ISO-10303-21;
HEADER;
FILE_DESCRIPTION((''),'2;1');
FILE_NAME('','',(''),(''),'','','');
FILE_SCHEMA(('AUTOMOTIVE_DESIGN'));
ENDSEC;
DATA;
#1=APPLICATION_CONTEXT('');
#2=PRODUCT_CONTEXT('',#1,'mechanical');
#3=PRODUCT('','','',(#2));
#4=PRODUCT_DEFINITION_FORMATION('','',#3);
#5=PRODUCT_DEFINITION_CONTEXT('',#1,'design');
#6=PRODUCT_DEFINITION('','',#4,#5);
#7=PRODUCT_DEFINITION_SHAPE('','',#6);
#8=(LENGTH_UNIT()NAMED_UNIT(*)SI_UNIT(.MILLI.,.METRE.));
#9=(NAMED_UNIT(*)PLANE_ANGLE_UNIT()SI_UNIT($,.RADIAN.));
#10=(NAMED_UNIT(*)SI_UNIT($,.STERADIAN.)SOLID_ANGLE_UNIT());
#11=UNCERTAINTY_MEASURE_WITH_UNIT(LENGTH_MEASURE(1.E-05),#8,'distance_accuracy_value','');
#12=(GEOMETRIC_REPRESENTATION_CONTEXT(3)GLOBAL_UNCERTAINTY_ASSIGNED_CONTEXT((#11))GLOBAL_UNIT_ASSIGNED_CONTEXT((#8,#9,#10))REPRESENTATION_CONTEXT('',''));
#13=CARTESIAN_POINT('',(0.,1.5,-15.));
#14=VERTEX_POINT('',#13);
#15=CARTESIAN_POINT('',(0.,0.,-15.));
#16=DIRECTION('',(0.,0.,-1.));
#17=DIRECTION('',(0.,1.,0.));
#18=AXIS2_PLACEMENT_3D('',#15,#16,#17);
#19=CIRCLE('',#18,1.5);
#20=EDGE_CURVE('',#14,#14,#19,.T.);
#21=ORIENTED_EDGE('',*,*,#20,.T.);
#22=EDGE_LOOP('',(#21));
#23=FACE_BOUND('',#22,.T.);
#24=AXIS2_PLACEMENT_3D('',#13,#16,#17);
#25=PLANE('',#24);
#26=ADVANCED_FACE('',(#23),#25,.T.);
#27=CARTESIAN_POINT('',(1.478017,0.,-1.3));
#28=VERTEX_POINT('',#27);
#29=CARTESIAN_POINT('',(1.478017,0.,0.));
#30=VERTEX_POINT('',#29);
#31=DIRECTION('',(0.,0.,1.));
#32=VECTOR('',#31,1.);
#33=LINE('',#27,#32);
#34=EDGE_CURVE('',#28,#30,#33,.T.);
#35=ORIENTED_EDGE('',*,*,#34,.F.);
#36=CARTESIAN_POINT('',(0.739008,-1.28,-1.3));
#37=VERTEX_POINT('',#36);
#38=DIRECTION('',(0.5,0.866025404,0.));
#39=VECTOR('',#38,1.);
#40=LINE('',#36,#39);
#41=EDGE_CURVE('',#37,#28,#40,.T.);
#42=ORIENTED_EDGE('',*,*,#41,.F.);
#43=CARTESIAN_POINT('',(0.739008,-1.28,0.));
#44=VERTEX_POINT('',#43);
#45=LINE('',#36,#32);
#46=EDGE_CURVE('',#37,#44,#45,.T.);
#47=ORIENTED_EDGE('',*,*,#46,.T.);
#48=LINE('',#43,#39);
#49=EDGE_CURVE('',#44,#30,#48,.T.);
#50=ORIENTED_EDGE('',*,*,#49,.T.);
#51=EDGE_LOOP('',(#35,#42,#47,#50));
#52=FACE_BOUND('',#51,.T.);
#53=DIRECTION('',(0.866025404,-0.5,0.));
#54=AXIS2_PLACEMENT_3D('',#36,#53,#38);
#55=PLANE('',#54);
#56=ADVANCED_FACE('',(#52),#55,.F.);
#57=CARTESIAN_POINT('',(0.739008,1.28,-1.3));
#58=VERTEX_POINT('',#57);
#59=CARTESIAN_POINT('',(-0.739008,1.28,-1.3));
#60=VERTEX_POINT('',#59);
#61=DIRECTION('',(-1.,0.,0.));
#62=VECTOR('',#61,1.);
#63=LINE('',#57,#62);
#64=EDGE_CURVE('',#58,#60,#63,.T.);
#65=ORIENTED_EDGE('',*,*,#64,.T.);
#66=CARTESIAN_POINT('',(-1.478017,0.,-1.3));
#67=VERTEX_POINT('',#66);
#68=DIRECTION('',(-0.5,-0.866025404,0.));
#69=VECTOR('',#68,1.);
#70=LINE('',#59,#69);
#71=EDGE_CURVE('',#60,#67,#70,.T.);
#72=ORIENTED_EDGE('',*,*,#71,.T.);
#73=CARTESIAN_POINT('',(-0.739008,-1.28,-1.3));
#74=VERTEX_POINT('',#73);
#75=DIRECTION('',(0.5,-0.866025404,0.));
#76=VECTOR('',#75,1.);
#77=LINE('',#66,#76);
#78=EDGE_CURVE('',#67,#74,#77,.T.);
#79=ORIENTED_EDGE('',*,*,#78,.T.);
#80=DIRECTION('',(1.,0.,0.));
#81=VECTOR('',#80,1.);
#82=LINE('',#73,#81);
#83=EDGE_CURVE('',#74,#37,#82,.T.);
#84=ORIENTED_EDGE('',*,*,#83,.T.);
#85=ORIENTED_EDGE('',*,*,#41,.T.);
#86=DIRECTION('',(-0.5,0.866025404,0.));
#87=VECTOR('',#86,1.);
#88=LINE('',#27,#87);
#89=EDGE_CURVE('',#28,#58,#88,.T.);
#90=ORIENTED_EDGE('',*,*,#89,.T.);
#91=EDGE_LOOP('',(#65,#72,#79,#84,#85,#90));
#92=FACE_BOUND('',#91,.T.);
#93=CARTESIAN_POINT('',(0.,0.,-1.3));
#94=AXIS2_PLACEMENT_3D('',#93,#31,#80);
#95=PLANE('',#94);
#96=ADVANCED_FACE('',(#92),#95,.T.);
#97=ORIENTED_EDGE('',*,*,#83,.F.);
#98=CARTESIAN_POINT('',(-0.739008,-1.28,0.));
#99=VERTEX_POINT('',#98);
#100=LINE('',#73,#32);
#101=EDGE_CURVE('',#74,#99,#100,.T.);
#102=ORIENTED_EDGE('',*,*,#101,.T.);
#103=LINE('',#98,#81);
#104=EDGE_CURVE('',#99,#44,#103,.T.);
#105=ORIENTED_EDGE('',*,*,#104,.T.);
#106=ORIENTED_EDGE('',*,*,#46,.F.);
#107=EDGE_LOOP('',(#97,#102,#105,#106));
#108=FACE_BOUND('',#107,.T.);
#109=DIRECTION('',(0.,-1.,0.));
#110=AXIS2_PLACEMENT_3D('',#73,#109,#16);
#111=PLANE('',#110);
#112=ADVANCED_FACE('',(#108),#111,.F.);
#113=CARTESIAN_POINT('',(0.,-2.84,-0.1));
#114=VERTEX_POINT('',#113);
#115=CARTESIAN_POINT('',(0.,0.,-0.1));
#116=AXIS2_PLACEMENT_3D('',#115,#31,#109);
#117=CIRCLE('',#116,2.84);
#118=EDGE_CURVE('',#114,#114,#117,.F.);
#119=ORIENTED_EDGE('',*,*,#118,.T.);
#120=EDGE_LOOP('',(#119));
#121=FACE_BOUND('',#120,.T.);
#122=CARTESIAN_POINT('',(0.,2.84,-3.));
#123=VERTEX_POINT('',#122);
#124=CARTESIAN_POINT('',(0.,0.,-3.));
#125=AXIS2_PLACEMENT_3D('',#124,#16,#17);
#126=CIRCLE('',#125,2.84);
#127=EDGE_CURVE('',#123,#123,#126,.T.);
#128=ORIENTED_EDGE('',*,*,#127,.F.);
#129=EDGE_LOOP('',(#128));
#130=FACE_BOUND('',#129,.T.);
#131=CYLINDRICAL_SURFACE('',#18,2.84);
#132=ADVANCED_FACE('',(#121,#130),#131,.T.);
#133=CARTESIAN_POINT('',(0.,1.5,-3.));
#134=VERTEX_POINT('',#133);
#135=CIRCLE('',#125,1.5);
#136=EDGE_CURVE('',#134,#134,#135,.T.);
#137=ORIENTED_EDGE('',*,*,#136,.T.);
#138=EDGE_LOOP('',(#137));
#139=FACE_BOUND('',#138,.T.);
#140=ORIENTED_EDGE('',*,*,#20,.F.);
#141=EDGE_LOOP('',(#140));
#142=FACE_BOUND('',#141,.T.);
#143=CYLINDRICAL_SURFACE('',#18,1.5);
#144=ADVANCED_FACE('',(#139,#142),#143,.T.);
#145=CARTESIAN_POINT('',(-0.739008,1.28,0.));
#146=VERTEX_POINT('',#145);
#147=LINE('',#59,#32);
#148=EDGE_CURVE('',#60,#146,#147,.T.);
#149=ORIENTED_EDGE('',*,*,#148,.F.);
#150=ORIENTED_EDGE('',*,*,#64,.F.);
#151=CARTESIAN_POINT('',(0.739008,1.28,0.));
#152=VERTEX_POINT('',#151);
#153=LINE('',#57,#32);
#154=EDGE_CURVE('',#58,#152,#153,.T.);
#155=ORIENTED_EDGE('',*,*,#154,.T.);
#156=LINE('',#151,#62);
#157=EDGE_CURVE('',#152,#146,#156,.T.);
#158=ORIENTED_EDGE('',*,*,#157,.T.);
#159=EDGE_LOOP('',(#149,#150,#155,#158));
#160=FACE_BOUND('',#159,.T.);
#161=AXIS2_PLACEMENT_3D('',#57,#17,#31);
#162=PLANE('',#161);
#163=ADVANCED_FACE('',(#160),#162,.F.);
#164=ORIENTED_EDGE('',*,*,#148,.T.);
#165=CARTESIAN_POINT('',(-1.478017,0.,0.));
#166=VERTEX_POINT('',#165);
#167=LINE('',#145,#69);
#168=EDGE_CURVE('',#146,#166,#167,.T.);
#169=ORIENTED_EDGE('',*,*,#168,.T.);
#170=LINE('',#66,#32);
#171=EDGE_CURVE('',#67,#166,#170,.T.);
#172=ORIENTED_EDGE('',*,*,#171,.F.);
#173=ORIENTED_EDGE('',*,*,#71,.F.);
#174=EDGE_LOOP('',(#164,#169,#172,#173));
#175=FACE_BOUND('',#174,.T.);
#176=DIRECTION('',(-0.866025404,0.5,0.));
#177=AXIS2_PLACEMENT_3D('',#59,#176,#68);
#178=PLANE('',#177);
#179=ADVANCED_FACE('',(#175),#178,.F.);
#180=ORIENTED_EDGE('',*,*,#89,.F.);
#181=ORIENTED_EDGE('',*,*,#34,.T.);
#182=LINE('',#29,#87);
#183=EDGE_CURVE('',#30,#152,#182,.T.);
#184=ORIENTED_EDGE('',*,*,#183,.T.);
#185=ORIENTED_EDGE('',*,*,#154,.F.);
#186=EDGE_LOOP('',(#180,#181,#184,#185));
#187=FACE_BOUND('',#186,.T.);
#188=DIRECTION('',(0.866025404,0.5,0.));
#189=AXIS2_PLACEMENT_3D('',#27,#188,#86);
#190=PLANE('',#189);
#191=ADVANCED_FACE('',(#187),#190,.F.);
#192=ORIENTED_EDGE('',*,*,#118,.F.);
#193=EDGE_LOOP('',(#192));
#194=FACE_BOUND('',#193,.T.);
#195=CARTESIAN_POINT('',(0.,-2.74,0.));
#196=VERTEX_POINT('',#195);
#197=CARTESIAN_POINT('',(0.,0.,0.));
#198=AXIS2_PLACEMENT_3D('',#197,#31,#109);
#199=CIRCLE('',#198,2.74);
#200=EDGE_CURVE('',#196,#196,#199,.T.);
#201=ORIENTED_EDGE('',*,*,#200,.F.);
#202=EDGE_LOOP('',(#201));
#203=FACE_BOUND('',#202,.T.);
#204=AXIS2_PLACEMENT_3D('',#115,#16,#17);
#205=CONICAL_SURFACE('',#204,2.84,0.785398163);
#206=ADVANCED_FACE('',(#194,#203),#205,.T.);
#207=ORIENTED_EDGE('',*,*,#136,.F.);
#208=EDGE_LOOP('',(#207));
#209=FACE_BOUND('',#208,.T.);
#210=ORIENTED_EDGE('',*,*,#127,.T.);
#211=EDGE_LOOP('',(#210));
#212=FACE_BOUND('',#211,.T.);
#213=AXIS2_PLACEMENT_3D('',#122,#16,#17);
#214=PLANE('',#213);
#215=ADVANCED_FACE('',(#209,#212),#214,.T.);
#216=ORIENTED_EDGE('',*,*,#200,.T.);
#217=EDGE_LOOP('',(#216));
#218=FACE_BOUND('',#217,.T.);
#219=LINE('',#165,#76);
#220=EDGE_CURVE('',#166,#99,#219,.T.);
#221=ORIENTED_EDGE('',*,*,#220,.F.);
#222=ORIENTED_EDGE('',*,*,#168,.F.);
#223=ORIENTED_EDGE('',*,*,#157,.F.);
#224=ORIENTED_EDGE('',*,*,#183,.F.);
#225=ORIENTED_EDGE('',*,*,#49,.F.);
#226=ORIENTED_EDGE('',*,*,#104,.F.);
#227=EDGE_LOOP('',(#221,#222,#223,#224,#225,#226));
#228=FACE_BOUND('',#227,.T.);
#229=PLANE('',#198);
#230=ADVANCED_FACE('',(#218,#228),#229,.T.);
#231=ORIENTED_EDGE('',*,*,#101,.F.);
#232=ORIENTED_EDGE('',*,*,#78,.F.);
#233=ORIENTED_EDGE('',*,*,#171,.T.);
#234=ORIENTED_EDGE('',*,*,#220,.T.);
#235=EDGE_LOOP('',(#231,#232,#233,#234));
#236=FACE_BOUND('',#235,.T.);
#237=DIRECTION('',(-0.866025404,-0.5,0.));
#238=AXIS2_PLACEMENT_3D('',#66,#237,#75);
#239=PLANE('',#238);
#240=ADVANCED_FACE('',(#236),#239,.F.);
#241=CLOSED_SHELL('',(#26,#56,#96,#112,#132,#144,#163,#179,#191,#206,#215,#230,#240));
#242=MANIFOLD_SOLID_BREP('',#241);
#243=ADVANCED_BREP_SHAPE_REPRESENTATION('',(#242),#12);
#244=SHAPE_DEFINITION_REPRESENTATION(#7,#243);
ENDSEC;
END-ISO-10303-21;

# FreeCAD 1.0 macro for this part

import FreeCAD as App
import Part
import Sketcher
from FreeCAD import Vector
Q = App.Units.Quantity


def edges_at(feature, points):
    """Names of the edges that pass closest to the given points."""
    edges = feature.Shape.Edges
    near = lambda p: min(range(len(edges)), key=lambda i: edges[i].distToShape(Part.Vertex(*p))[0])
    return sorted({f"Edge{near(p) + 1}" for p in points})


def add_polygon(sketch, points):
    """Adds a closed chain of lines whose ends are joined by coincident constraints."""
    first, n = sketch.GeometryCount, len(points)
    for a, b in zip(points, points[1:] + points[:1]):
        sketch.addGeometry(Part.LineSegment(App.Vector(*a, 0), App.Vector(*b, 0)), False)
    for i in range(n):
        sketch.addConstraint(Sketcher.Constraint("Coincident", first + i, 2, first + (i + 1) % n, 1))

doc = App.newDocument("Part")
params = doc.addObject("Spreadsheet::Sheet", "Params")
for row, (alias, value) in enumerate([
    ("sketch1_height", "15 mm"),
    ("sketch1_height2", "12 mm"),
    ("sketch1_width", "1.5 mm"),
    ("sketch1_width2", "2.84 mm"),
    ("revolution_angle", "360 deg"),
    ("pocket1_length", "1.3 mm"),
    ("chamfer_size", "0.1 mm"),
], start=1):
    params.set(f"A{row}", alias)
    params.set(f"B{row}", "=" + value)
    params.setAlias(f"B{row}", alias)

body = doc.addObject("PartDesign::Body", "Body")

# Sketch on YZ plane
sketch1 = doc.addObject("Sketcher::SketchObject", "Sketch")
body.addObject(sketch1)
sketch1.AttachmentSupport = (doc.YZ_Plane, [""])
sketch1.MapMode = "FlatFace"
add_polygon(sketch1, [(2.8, 0), (0, 0), (0, -15), (1.5, -15), (1.5, -3), (2.8, -3)])  # lines 0-5
sketch1.addConstraint([
    Sketcher.Constraint("Horizontal", 0),
    Sketcher.Constraint("Vertical", 1),
    Sketcher.Constraint("Horizontal", 2),
    Sketcher.Constraint("Vertical", 3),
    Sketcher.Constraint("Horizontal", 4),
    Sketcher.Constraint("Vertical", 5),
    Sketcher.Constraint("Coincident", 0, 2, -1, 1),
    Sketcher.Constraint("DistanceY", 1, 2, 1, 1, Q("15 mm")),
    Sketcher.Constraint("DistanceY", 3, 1, 3, 2, Q("12 mm")),
    Sketcher.Constraint("DistanceX", 2, 1, 2, 2, Q("1.5 mm")),
    Sketcher.Constraint("DistanceX", 0, 2, 0, 1, Q("2.84 mm")),
])
sketch1.setExpression("Constraints[13]", "Params.sketch1_height")
sketch1.setExpression("Constraints[14]", "Params.sketch1_height2")
sketch1.setExpression("Constraints[15]", "Params.sketch1_width")
sketch1.setExpression("Constraints[16]", "Params.sketch1_width2")
revolution = doc.addObject("PartDesign::Revolution", "Revolution")
body.addObject(revolution)
revolution.Profile = sketch1
revolution.ReferenceAxis = (sketch1, ["V_Axis"])
revolution.setExpression("Angle", "Params.revolution_angle")

# Sketch on XY plane
sketch2 = doc.addObject("Sketcher::SketchObject", "Sketch001")
body.addObject(sketch2)
sketch2.AttachmentSupport = (doc.XY_Plane, [""])
sketch2.MapMode = "FlatFace"
add_polygon(sketch2, [(0.7, 1.3), (-0.7, 1.3), (-1.5, 0), (-0.7, -1.3), (0.7, -1.3), (1.5, 0)])  # lines 0-5
sketch2.addConstraint([
    Sketcher.Constraint("Horizontal", 0),
    Sketcher.Constraint("Horizontal", 3),
    Sketcher.Constraint("Symmetric", 0, 2, 3, 2, -1, 1),
    Sketcher.Constraint("Symmetric", 1, 2, 4, 2, -1, 1),
    Sketcher.Constraint("PointOnObject", 1, 2, -1),
    Sketcher.Constraint("Parallel", 2, 5),
    Sketcher.Constraint("Vertical", 0, 2, 2, 2),
    Sketcher.Constraint("Angle", 1, Q("-120 deg")),
    Sketcher.Constraint("DistanceY", -1, 1, 0, 2, Q("1.28 mm")),
    Sketcher.Constraint("DistanceX", 0, 2, 0, 1, Q("1.478017 mm")),
])
pocket1 = doc.addObject("PartDesign::Pocket", "Pocket")
body.addObject(pocket1)
pocket1.Profile = sketch2
pocket1.setExpression("Length", "Params.pocket1_length")
doc.recompute()

chamfer = doc.addObject("PartDesign::Chamfer", "Chamfer")
body.addObject(chamfer)
chamfer.Base = (pocket1, edges_at(pocket1, [(0, -2.84, 0)]))
chamfer.setExpression("Size", "Params.chamfer_size")

doc.recompute()
